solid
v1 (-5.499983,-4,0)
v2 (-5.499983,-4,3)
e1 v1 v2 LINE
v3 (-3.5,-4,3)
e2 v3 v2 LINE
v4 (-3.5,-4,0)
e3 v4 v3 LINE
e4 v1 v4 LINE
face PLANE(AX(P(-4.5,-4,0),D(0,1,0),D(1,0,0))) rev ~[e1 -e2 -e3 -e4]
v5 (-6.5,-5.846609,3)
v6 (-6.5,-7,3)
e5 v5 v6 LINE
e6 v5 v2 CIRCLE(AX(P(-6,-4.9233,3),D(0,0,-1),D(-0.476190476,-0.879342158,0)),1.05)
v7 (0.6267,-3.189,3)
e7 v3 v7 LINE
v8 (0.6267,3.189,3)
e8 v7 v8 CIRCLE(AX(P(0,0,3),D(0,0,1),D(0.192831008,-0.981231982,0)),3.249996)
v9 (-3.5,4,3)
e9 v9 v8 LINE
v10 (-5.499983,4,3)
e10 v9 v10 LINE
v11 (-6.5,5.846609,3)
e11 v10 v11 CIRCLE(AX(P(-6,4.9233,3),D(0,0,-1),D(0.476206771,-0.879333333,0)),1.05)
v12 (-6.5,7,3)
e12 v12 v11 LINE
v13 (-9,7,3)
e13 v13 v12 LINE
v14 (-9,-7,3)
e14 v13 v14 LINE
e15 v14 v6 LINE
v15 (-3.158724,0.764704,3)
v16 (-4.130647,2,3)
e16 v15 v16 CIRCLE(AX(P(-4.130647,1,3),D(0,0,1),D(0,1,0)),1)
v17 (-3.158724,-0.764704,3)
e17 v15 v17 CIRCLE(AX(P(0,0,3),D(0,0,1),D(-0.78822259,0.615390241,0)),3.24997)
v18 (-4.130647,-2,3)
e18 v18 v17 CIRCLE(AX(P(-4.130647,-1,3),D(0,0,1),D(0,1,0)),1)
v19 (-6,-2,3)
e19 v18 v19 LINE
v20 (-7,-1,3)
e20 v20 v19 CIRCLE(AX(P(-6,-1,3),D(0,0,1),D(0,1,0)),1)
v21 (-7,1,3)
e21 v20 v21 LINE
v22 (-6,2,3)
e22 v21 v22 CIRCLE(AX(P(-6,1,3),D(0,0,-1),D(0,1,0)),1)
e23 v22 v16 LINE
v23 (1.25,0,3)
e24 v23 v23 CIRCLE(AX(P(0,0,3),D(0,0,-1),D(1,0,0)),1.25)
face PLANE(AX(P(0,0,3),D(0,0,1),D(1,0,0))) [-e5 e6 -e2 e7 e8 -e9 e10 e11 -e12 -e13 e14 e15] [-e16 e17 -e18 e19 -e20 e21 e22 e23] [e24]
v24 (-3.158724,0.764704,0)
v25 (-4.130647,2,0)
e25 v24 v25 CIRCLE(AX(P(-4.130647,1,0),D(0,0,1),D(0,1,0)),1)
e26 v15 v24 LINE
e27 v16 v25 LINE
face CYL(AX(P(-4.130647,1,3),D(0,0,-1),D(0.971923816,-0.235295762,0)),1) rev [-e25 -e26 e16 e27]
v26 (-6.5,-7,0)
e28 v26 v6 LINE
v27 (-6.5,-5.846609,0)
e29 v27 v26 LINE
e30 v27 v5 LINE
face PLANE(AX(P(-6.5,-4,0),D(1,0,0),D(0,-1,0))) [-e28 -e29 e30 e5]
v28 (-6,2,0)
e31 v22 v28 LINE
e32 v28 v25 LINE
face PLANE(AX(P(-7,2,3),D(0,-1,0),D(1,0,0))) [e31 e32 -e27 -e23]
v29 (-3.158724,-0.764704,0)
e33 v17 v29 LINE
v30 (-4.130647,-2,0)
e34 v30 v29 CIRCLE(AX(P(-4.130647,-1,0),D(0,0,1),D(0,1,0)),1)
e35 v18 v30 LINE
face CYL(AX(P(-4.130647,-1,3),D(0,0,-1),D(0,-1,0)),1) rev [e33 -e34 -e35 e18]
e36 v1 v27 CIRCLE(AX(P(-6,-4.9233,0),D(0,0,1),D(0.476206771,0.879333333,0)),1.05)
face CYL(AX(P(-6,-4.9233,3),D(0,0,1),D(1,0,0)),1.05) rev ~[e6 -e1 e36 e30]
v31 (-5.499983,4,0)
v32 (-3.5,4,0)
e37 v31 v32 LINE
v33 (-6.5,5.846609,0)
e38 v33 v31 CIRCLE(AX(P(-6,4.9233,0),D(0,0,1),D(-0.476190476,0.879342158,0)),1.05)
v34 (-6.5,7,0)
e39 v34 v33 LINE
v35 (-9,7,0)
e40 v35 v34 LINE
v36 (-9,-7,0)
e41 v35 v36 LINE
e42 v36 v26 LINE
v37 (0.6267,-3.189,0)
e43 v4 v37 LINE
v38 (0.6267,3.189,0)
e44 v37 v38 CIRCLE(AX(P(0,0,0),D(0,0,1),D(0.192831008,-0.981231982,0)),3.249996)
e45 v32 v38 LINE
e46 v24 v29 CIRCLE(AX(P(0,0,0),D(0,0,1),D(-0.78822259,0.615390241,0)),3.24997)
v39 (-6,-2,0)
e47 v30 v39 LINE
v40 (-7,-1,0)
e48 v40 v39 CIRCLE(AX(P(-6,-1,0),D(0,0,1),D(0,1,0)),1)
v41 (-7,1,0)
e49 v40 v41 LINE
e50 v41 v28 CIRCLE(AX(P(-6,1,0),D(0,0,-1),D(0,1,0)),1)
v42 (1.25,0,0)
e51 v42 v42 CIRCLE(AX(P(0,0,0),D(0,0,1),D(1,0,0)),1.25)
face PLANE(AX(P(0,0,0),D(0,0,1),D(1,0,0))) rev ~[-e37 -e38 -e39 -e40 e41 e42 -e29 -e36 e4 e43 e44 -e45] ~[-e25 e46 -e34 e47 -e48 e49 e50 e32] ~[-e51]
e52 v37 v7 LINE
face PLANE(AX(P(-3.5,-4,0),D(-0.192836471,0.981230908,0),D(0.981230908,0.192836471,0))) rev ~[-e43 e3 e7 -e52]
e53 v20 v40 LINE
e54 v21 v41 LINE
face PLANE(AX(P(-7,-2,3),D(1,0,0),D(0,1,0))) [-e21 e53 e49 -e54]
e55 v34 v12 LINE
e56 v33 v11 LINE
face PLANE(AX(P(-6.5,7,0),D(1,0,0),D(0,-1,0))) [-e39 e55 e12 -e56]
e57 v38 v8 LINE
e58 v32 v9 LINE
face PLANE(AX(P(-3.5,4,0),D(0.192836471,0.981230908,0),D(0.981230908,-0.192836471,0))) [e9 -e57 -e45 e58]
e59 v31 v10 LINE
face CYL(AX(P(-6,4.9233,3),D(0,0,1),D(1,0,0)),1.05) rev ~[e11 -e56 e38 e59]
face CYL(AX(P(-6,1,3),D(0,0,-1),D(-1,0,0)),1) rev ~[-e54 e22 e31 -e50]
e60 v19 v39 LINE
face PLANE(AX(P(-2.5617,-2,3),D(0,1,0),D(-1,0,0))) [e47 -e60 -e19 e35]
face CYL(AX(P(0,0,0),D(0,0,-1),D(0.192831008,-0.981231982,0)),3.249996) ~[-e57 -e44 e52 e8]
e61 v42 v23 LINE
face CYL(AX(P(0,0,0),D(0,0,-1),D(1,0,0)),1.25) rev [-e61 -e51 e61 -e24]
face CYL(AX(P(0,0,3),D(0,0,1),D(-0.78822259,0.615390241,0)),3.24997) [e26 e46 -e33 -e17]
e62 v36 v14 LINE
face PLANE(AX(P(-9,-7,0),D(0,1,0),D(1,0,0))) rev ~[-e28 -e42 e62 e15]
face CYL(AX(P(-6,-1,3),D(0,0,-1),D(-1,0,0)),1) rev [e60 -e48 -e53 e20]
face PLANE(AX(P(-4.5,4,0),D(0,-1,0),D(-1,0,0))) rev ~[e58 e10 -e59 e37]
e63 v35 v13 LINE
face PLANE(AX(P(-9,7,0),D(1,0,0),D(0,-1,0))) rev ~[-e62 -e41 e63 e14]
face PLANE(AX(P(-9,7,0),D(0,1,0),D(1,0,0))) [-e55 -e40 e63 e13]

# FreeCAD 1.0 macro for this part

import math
import FreeCAD as App
import Part
import Sketcher
from FreeCAD import Vector
Q = App.Units.Quantity


def edges_at(feature, points):
    """Names of the edges that pass closest to the given points."""
    edges = feature.Shape.Edges
    near = lambda p: min(range(len(edges)), key=lambda i: edges[i].distToShape(Part.Vertex(*p))[0])
    return sorted({f"Edge{near(p) + 1}" for p in points})

doc = App.newDocument("Part")
body = doc.addObject("PartDesign::Body", "Body")

sketch1 = doc.addObject("Sketcher::SketchObject", "Sketch")
body.addObject(sketch1)
sketch1.AttachmentSupport = (doc.XY_Plane, [""])
sketch1.MapMode = "FlatFace"
sketch1.addGeometry([
    Part.LineSegment(Vector(-3.5, -4, 0), Vector(0.6267, -3.189, 0)),
    Part.ArcOfCircle(Part.Circle(Vector(0, 0, 0), Vector(0, 0, 1), 3.249996), math.radians(-78.881955), math.radians(78.881955)),
    Part.LineSegment(Vector(0.6267, 3.189, 0), Vector(-3.5, 4, 0)),
    Part.LineSegment(Vector(-3.5, 4, 0), Vector(-6.5, 4, 0)),
    Part.LineSegment(Vector(-6.5, 4, 0), Vector(-6.5, 7, 0)),
    Part.LineSegment(Vector(-6.5, 7, 0), Vector(-9, 7, 0)),
    Part.LineSegment(Vector(-9, 7, 0), Vector(-9, -7, 0)),
    Part.LineSegment(Vector(-9, -7, 0), Vector(-6.5, -7, 0)),
    Part.LineSegment(Vector(-6.5, -7, 0), Vector(-6.5, -4, 0)),
    Part.LineSegment(Vector(-6.5, -4, 0), Vector(-3.5, -4, 0)),
    Part.Circle(Vector(0, 0, 0), Vector(0, 0, 1), 1.25),
], False)
sketch1.addConstraint([
    Sketcher.Constraint("Tangent", 0, 2, 1, 1),
    Sketcher.Constraint("Tangent", 1, 2, 2, 1),
    Sketcher.Constraint("Coincident", 2, 2, 3, 1),
    Sketcher.Constraint("Coincident", 3, 2, 4, 1),
    Sketcher.Constraint("Coincident", 4, 2, 5, 1),
    Sketcher.Constraint("Coincident", 5, 2, 6, 1),
    Sketcher.Constraint("Coincident", 6, 2, 7, 1),
    Sketcher.Constraint("Coincident", 7, 2, 8, 1),
    Sketcher.Constraint("Coincident", 8, 2, 9, 1),
    Sketcher.Constraint("Coincident", 9, 2, 0, 1),
    Sketcher.Constraint("Horizontal", 3),
    Sketcher.Constraint("Vertical", 4),
    Sketcher.Constraint("Horizontal", 5),
    Sketcher.Constraint("Vertical", 6),
    Sketcher.Constraint("Horizontal", 7),
    Sketcher.Constraint("Vertical", 8),
    Sketcher.Constraint("Horizontal", 9),
    Sketcher.Constraint("Coincident", 1, 3, -1, 1),
    Sketcher.Constraint("Coincident", 10, 3, -1, 1),
    Sketcher.Constraint("Symmetric", 4, 2, 7, 2, -1),
    Sketcher.Constraint("Symmetric", 2, 2, 9, 2, -1),
    Sketcher.Constraint("Equal", 9, 4),
    Sketcher.Constraint("Diameter", 10, Q("2.5 mm")),
    Sketcher.Constraint("DistanceX", 3, 2, 3, 1, Q("3 mm")),
    Sketcher.Constraint("DistanceY", 6, 2, 6, 1, Q("14 mm")),
    Sketcher.Constraint("DistanceX", 5, 2, 5, 1, Q("2.5 mm")),
    Sketcher.Constraint("Radius", 1, Q("3.25 mm")),
    Sketcher.Constraint("DistanceX", 5, 2, -1, 1, Q("9 mm")),
])
pad1 = doc.addObject("PartDesign::Pad", "Pad")
body.addObject(pad1)
pad1.Profile = sketch1
pad1.Length = 3

sketch2 = doc.addObject("Sketcher::SketchObject", "Sketch001")
body.addObject(sketch2)
sketch2.AttachmentSupport = (doc.XY_Plane, [""])
sketch2.MapMode = "FlatFace"
sketch2.AttachmentOffset = App.Placement(Vector(0, 0, 3), App.Rotation())
sketch2.addGeometry([
    Part.Circle(Vector(-6, 4.9233, 0), Vector(0, 0, 1), 1.05),
    Part.Circle(Vector(-6, -4.9233, 0), Vector(0, 0, 1), 1.05),
], False)
sketch2.addConstraint([
    Sketcher.Constraint("Equal", 0, 1),
    Sketcher.Constraint("Symmetric", 0, 3, 1, 3, -1),
    Sketcher.Constraint("Diameter", 0, Q("2.1 mm")),
    Sketcher.Constraint("DistanceX", 0, 3, -1, 1, Q("6 mm")),
    Sketcher.Constraint("DistanceY", -1, 1, 0, 3, Q("4.9233 mm")),
])
pocket1 = doc.addObject("PartDesign::Pocket", "Pocket")
body.addObject(pocket1)
pocket1.Profile = sketch2
pocket1.Length = 3

sketch3 = doc.addObject("Sketcher::SketchObject", "Sketch002")
body.addObject(sketch3)
sketch3.AttachmentSupport = (doc.XY_Plane, [""])
sketch3.MapMode = "FlatFace"
sketch3.AttachmentOffset = App.Placement(Vector(0, 0, 3), App.Rotation())
sketch3.addGeometry([
    Part.LineSegment(Vector(-2.5617, 2, 0), Vector(-7, 2, 0)),
    Part.LineSegment(Vector(-7, 2, 0), Vector(-7, -2, 0)),
    Part.LineSegment(Vector(-7, -2, 0), Vector(-2.5617, -2, 0)),
    Part.ArcOfCircle(Part.Circle(Vector(0, 0, 0), Vector(0, 0, 1), 3.24997), math.radians(142.019719), math.radians(217.980281)),
], False)
sketch3.addConstraint([
    Sketcher.Constraint("Coincident", 0, 2, 1, 1),
    Sketcher.Constraint("Coincident", 1, 2, 2, 1),
    Sketcher.Constraint("Coincident", 2, 2, 3, 2),
    Sketcher.Constraint("Coincident", 3, 1, 0, 1),
    Sketcher.Constraint("Horizontal", 0),
    Sketcher.Constraint("Vertical", 1),
    Sketcher.Constraint("Horizontal", 2),
    Sketcher.Constraint("Coincident", 3, 3, -1, 1),
    Sketcher.Constraint("Vertical", 2, 2, 3, 1),
    Sketcher.Constraint("DistanceY", -1, 1, 0, 2, Q("2 mm")),
    Sketcher.Constraint("Radius", 3, Q("3.25 mm")),
    Sketcher.Constraint("DistanceX", 0, 2, -1, 1, Q("7 mm")),
])
pocket2 = doc.addObject("PartDesign::Pocket", "Pocket001")
body.addObject(pocket2)
pocket2.Profile = sketch3
pocket2.Length = 3
doc.recompute()

fillet = doc.addObject("PartDesign::Fillet", "Fillet")
body.addObject(fillet)
fillet.Base = (pocket2, edges_at(pocket2, [
    (-2.562, -2, 1.5),
    (-2.562, 2, 1.5),
    (-7, -2, 1.5),
    (-7, 2, 1.5),
]))
fillet.Radius = 1

doc.recompute()
